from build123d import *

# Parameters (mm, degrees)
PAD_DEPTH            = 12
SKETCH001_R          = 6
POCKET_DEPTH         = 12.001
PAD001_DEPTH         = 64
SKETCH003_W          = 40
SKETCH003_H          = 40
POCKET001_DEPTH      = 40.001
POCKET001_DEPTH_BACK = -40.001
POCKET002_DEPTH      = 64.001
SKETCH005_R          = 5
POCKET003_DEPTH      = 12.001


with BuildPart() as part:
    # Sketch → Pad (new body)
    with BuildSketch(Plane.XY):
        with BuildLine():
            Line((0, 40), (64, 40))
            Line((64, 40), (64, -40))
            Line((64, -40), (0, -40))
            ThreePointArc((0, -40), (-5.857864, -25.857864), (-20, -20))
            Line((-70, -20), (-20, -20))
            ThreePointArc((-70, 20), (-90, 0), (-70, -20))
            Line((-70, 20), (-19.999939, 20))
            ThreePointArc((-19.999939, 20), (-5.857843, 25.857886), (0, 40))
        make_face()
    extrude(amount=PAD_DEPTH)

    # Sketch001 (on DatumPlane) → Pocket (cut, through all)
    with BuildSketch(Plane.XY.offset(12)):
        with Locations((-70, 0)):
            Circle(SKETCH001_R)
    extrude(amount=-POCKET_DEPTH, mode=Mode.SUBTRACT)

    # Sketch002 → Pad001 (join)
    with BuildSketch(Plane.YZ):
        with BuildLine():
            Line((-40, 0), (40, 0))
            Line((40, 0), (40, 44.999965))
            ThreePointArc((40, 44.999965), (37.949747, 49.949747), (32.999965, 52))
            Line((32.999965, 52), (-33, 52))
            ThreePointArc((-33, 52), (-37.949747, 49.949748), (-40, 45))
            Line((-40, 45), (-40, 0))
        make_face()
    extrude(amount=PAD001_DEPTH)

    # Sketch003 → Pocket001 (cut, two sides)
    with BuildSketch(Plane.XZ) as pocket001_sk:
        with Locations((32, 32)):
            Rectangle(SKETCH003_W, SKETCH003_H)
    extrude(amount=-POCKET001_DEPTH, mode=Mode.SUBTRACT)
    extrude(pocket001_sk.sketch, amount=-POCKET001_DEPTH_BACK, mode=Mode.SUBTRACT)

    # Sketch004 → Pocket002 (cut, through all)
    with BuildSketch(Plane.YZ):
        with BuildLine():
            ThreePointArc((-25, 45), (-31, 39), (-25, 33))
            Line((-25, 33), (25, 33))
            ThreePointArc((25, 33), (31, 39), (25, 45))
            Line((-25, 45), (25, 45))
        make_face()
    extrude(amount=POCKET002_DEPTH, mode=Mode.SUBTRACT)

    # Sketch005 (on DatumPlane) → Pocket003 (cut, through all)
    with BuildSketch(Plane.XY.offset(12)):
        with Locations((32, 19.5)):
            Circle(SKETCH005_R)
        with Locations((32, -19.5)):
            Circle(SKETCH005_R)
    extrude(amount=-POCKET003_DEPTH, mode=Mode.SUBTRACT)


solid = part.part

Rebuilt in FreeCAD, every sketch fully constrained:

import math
import FreeCAD as App
import Part
import Sketcher
Q = App.Units.Quantity


def add_polygon(sketch, points):
    """Adds a closed chain of lines whose ends are joined by coincident constraints."""
    first, n = sketch.GeometryCount, len(points)
    for a, b in zip(points, points[1:] + points[:1]):
        sketch.addGeometry(Part.LineSegment(App.Vector(*a, 0), App.Vector(*b, 0)), False)
    for i in range(n):
        sketch.addConstraint(Sketcher.Constraint("Coincident", first + i, 2, first + (i + 1) % n, 1))

doc = App.newDocument("Part")
params = doc.addObject("Spreadsheet::Sheet", "Params")
for row, (alias, value) in enumerate([
    ("sketch1_radius", "20 mm"),
    ("sketch1_width", "64 mm"),
    ("sketch1_width2", "50 mm"),
    ("pad1_length", "12 mm"),
    ("sketch2_diameter", "12 mm"),
    ("sketch3_radius", "7.000002 mm"),
    ("sketch3_width", "80 mm"),
    ("sketch3_height", "45 mm"),
    ("pad2_length", "64 mm"),
    ("sketch4_width", "40 mm"),
    ("sketch5_radius", "6 mm"),
    ("sketch5_width", "50 mm"),
    ("sketch6_diameter", "10 mm"),
], start=1):
    params.set(f"A{row}", alias)
    params.set(f"B{row}", "=" + value)
    params.setAlias(f"B{row}", alias)

body = doc.addObject("PartDesign::Body", "Body")

sketch1 = body.newObject("Sketcher::SketchObject", "Sketch")
sketch1.AttachmentSupport = (doc.getObject("XY_Plane"), [""])
sketch1.MapMode = "FlatFace"
sketch1.addGeometry([
    Part.LineSegment(App.Vector(64, 40, 0), App.Vector(0, 40, 0)),
    Part.ArcOfCircle(Part.Circle(App.Vector(-20, 40, 0), App.Vector(0, 0, 1), 20), math.radians(-90), math.radians(0)),
    Part.LineSegment(App.Vector(-20, 20, 0), App.Vector(-70, 20, 0)),
    Part.ArcOfCircle(Part.Circle(App.Vector(-70, 0, 0), App.Vector(0, 0, 1), 20), math.radians(90), math.radians(270)),
    Part.LineSegment(App.Vector(-70, -20, 0), App.Vector(-20, -20, 0)),
    Part.ArcOfCircle(Part.Circle(App.Vector(-20, -40, 0), App.Vector(0, 0, 1), 20), math.radians(0), math.radians(90)),
    Part.LineSegment(App.Vector(0, -40, 0), App.Vector(64, -40, 0)),
    Part.LineSegment(App.Vector(64, -40, 0), App.Vector(64, 40, 0)),
], False)
sketch1.addConstraint([
    Sketcher.Constraint("Coincident", 0, 2, 1, 2),
    Sketcher.Constraint("Coincident", 1, 1, 2, 1),
    Sketcher.Constraint("Tangent", 2, 2, 3, 1),
    Sketcher.Constraint("Tangent", 3, 2, 4, 1),
    Sketcher.Constraint("Tangent", 4, 2, 5, 2),
    Sketcher.Constraint("Coincident", 5, 1, 6, 1),
    Sketcher.Constraint("Coincident", 6, 2, 7, 1),
    Sketcher.Constraint("Coincident", 7, 2, 0, 1),
    Sketcher.Constraint("Horizontal", 0),
    Sketcher.Constraint("Horizontal", 2),
    Sketcher.Constraint("Horizontal", 4),
    Sketcher.Constraint("Horizontal", 6),
    Sketcher.Constraint("Vertical", 7),
    Sketcher.Constraint("Equal", 1, 3),
    Sketcher.Constraint("Equal", 3, 5),
    Sketcher.Constraint("Symmetric", 0, 2, 5, 1, -1, 1),
    Sketcher.Constraint("Symmetric", 1, 3, 5, 3, -1),
    Sketcher.Constraint("Horizontal", 1, 3, 0, 2),
    Sketcher.Constraint("Radius", 1, Q("20 mm")),
    Sketcher.Constraint("DistanceX", 0, 2, 0, 1, Q("64 mm")),
    Sketcher.Constraint("DistanceX", 4, 1, 4, 2, Q("50 mm")),
    Sketcher.Constraint("DistanceX", 2, 2, 2, 1, Q("50.000061 mm")),
])
sketch1.setExpression("Constraints[18]", "Params.sketch1_radius")
sketch1.setExpression("Constraints[19]", "Params.sketch1_width")
sketch1.setExpression("Constraints[20]", "Params.sketch1_width2")
pad1 = body.newObject("PartDesign::Pad", "Pad")
pad1.Profile = sketch1
pad1.setExpression("Length", "Params.pad1_length")

sketch2 = body.newObject("Sketcher::SketchObject", "Sketch001")
sketch2.AttachmentSupport = (doc.getObject("XY_Plane"), [""])
sketch2.MapMode = "FlatFace"
sketch2.AttachmentOffset = App.Placement(App.Vector(0, 0, 12), App.Rotation())
sketch2.addGeometry(Part.Circle(App.Vector(-70, 0, 0), App.Vector(0, 0, 1), 6), False)
sketch2.addConstraint([
    Sketcher.Constraint("PointOnObject", 0, 3, -1),
    Sketcher.Constraint("Diameter", 0, Q("12 mm")),
    Sketcher.Constraint("DistanceX", 0, 3, -1, 1, Q("70 mm")),
])
sketch2.setExpression("Constraints[1]", "Params.sketch2_diameter")
pocket1 = body.newObject("PartDesign::Pocket", "Pocket")
pocket1.Profile = sketch2
pocket1.Type = "ThroughAll"

sketch3 = body.newObject("Sketcher::SketchObject", "Sketch002")
sketch3.AttachmentSupport = (doc.getObject("YZ_Plane"), [""])
sketch3.MapMode = "FlatFace"
sketch3.addGeometry([
    Part.LineSegment(App.Vector(-40, 0, 0), App.Vector(40, 0, 0)),
    Part.LineSegment(App.Vector(40, 0, 0), App.Vector(40, 45, 0)),
    Part.ArcOfCircle(Part.Circle(App.Vector(33, 45, 0), App.Vector(0, 0, 1), 7), math.radians(0), math.radians(90)),
    Part.LineSegment(App.Vector(33, 52, 0), App.Vector(-33, 52, 0)),
    Part.ArcOfCircle(Part.Circle(App.Vector(-33, 45, 0), App.Vector(0, 0, 1), 7), math.radians(90), math.radians(180)),
    Part.LineSegment(App.Vector(-40, 45, 0), App.Vector(-40, 0, 0)),
], False)
sketch3.addConstraint([
    Sketcher.Constraint("Coincident", 0, 2, 1, 1),
    Sketcher.Constraint("Coincident", 1, 2, 2, 1),
    Sketcher.Constraint("Coincident", 2, 2, 3, 1),
    Sketcher.Constraint("Tangent", 3, 2, 4, 1),
    Sketcher.Constraint("Tangent", 4, 2, 5, 1),
    Sketcher.Constraint("Coincident", 5, 2, 0, 1),
    Sketcher.Constraint("Horizontal", 0),
    Sketcher.Constraint("Vertical", 1),
    Sketcher.Constraint("Horizontal", 3),
    Sketcher.Constraint("Vertical", 5),
    Sketcher.Constraint("Equal", 2, 4),
    Sketcher.Constraint("Symmetric", 0, 2, 5, 2, -1, 1),
    Sketcher.Constraint("Radius", 2, Q("7.000002 mm")),
    Sketcher.Constraint("DistanceX", 0, 1, 0, 2, Q("80 mm")),
    Sketcher.Constraint("DistanceY", 5, 2, 5, 1, Q("45 mm")),
    Sketcher.Constraint("DistanceX", 3, 2, 3, 1, Q("65.999965 mm")),
    Sketcher.Constraint("DistanceY", 1, 1, 1, 2, Q("44.999965 mm")),
])
sketch3.setExpression("Constraints[12]", "Params.sketch3_radius")
sketch3.setExpression("Constraints[13]", "Params.sketch3_width")
sketch3.setExpression("Constraints[14]", "Params.sketch3_height")
pad2 = body.newObject("PartDesign::Pad", "Pad001")
pad2.Profile = sketch3
pad2.setExpression("Length", "Params.pad2_length")

sketch4 = body.newObject("Sketcher::SketchObject", "Sketch003")
sketch4.AttachmentSupport = (doc.getObject("XZ_Plane"), [""])
sketch4.MapMode = "FlatFace"
add_polygon(sketch4, [(12, 52), (12, 12), (52, 12), (52, 52)])
sketch4.addConstraint([
    Sketcher.Constraint("Vertical", 0),
    Sketcher.Constraint("Horizontal", 1),
    Sketcher.Constraint("Vertical", 2),
    Sketcher.Constraint("Horizontal", 3),
    Sketcher.Constraint("Equal", 3, 0),
    Sketcher.Constraint("DistanceX", 1, 1, 1, 2, Q("40 mm")),
    Sketcher.Constraint("DistanceX", -1, 1, 0, 2, Q("12 mm")),
    Sketcher.Constraint("DistanceY", -1, 1, 0, 2, Q("12 mm")),
])
sketch4.setExpression("Constraints[9]", "Params.sketch4_width")
pocket2 = body.newObject("PartDesign::Pocket", "Pocket001")
pocket2.Profile = sketch4
pocket2.Type = "ThroughAll"
pocket2.Midplane = True

sketch5 = body.newObject("Sketcher::SketchObject", "Sketch004")
sketch5.AttachmentSupport = (doc.getObject("YZ_Plane"), [""])
sketch5.MapMode = "FlatFace"
sketch5.addGeometry([
    Part.ArcOfCircle(Part.Circle(App.Vector(-25, 39, 0), App.Vector(0, 0, 1), 6), math.radians(90), math.radians(270)),
    Part.LineSegment(App.Vector(-25, 33, 0), App.Vector(25, 33, 0)),
    Part.ArcOfCircle(Part.Circle(App.Vector(25, 39, 0), App.Vector(0, 0, 1), 6), math.radians(-90), math.radians(90)),
    Part.LineSegment(App.Vector(25, 45, 0), App.Vector(-25, 45, 0)),
], False)
sketch5.addConstraint([
    Sketcher.Constraint("Tangent", 0, 2, 1, 1),
    Sketcher.Constraint("Tangent", 1, 2, 2, 1),
    Sketcher.Constraint("Tangent", 2, 2, 3, 1),
    Sketcher.Constraint("Tangent", 3, 2, 0, 1),
    Sketcher.Constraint("Horizontal", 1),
    Sketcher.Constraint("Horizontal", 3),
    Sketcher.Constraint("Radius", 0, Q("6 mm")),
    Sketcher.Constraint("DistanceX", 1, 1, 1, 2, Q("50 mm")),
    Sketcher.Constraint("DistanceX", 0, 3, -1, 1, Q("25 mm")),
    Sketcher.Constraint("DistanceY", -1, 1, 0, 3, Q("39 mm")),
])
sketch5.setExpression("Constraints[6]", "Params.sketch5_radius")
sketch5.setExpression("Constraints[7]", "Params.sketch5_width")
pocket3 = body.newObject("PartDesign::Pocket", "Pocket002")
pocket3.Profile = sketch5
pocket3.Type = "ThroughAll"
pocket3.Reversed = True

sketch6 = body.newObject("Sketcher::SketchObject", "Sketch005")
sketch6.AttachmentSupport = (doc.getObject("XY_Plane"), [""])
sketch6.MapMode = "FlatFace"
sketch6.AttachmentOffset = App.Placement(App.Vector(0, 0, 12), App.Rotation())
sketch6.addGeometry([
    Part.Circle(App.Vector(32, 20, 0), App.Vector(0, 0, 1), 5),
    Part.Circle(App.Vector(32, -20, 0), App.Vector(0, 0, 1), 5),
], False)
sketch6.addConstraint([
    Sketcher.Constraint("Equal", 0, 1),
    Sketcher.Constraint("Symmetric", 0, 3, 1, 3, -1),
    Sketcher.Constraint("Diameter", 0, Q("10 mm")),
    Sketcher.Constraint("DistanceX", -1, 1, 0, 3, Q("32 mm")),
    Sketcher.Constraint("DistanceY", 1, 3, 0, 3, Q("39 mm")),
])
sketch6.setExpression("Constraints[2]", "Params.sketch6_diameter")
pocket4 = body.newObject("PartDesign::Pocket", "Pocket003")
pocket4.Profile = sketch6
pocket4.Type = "ThroughAll"

doc.recompute()
